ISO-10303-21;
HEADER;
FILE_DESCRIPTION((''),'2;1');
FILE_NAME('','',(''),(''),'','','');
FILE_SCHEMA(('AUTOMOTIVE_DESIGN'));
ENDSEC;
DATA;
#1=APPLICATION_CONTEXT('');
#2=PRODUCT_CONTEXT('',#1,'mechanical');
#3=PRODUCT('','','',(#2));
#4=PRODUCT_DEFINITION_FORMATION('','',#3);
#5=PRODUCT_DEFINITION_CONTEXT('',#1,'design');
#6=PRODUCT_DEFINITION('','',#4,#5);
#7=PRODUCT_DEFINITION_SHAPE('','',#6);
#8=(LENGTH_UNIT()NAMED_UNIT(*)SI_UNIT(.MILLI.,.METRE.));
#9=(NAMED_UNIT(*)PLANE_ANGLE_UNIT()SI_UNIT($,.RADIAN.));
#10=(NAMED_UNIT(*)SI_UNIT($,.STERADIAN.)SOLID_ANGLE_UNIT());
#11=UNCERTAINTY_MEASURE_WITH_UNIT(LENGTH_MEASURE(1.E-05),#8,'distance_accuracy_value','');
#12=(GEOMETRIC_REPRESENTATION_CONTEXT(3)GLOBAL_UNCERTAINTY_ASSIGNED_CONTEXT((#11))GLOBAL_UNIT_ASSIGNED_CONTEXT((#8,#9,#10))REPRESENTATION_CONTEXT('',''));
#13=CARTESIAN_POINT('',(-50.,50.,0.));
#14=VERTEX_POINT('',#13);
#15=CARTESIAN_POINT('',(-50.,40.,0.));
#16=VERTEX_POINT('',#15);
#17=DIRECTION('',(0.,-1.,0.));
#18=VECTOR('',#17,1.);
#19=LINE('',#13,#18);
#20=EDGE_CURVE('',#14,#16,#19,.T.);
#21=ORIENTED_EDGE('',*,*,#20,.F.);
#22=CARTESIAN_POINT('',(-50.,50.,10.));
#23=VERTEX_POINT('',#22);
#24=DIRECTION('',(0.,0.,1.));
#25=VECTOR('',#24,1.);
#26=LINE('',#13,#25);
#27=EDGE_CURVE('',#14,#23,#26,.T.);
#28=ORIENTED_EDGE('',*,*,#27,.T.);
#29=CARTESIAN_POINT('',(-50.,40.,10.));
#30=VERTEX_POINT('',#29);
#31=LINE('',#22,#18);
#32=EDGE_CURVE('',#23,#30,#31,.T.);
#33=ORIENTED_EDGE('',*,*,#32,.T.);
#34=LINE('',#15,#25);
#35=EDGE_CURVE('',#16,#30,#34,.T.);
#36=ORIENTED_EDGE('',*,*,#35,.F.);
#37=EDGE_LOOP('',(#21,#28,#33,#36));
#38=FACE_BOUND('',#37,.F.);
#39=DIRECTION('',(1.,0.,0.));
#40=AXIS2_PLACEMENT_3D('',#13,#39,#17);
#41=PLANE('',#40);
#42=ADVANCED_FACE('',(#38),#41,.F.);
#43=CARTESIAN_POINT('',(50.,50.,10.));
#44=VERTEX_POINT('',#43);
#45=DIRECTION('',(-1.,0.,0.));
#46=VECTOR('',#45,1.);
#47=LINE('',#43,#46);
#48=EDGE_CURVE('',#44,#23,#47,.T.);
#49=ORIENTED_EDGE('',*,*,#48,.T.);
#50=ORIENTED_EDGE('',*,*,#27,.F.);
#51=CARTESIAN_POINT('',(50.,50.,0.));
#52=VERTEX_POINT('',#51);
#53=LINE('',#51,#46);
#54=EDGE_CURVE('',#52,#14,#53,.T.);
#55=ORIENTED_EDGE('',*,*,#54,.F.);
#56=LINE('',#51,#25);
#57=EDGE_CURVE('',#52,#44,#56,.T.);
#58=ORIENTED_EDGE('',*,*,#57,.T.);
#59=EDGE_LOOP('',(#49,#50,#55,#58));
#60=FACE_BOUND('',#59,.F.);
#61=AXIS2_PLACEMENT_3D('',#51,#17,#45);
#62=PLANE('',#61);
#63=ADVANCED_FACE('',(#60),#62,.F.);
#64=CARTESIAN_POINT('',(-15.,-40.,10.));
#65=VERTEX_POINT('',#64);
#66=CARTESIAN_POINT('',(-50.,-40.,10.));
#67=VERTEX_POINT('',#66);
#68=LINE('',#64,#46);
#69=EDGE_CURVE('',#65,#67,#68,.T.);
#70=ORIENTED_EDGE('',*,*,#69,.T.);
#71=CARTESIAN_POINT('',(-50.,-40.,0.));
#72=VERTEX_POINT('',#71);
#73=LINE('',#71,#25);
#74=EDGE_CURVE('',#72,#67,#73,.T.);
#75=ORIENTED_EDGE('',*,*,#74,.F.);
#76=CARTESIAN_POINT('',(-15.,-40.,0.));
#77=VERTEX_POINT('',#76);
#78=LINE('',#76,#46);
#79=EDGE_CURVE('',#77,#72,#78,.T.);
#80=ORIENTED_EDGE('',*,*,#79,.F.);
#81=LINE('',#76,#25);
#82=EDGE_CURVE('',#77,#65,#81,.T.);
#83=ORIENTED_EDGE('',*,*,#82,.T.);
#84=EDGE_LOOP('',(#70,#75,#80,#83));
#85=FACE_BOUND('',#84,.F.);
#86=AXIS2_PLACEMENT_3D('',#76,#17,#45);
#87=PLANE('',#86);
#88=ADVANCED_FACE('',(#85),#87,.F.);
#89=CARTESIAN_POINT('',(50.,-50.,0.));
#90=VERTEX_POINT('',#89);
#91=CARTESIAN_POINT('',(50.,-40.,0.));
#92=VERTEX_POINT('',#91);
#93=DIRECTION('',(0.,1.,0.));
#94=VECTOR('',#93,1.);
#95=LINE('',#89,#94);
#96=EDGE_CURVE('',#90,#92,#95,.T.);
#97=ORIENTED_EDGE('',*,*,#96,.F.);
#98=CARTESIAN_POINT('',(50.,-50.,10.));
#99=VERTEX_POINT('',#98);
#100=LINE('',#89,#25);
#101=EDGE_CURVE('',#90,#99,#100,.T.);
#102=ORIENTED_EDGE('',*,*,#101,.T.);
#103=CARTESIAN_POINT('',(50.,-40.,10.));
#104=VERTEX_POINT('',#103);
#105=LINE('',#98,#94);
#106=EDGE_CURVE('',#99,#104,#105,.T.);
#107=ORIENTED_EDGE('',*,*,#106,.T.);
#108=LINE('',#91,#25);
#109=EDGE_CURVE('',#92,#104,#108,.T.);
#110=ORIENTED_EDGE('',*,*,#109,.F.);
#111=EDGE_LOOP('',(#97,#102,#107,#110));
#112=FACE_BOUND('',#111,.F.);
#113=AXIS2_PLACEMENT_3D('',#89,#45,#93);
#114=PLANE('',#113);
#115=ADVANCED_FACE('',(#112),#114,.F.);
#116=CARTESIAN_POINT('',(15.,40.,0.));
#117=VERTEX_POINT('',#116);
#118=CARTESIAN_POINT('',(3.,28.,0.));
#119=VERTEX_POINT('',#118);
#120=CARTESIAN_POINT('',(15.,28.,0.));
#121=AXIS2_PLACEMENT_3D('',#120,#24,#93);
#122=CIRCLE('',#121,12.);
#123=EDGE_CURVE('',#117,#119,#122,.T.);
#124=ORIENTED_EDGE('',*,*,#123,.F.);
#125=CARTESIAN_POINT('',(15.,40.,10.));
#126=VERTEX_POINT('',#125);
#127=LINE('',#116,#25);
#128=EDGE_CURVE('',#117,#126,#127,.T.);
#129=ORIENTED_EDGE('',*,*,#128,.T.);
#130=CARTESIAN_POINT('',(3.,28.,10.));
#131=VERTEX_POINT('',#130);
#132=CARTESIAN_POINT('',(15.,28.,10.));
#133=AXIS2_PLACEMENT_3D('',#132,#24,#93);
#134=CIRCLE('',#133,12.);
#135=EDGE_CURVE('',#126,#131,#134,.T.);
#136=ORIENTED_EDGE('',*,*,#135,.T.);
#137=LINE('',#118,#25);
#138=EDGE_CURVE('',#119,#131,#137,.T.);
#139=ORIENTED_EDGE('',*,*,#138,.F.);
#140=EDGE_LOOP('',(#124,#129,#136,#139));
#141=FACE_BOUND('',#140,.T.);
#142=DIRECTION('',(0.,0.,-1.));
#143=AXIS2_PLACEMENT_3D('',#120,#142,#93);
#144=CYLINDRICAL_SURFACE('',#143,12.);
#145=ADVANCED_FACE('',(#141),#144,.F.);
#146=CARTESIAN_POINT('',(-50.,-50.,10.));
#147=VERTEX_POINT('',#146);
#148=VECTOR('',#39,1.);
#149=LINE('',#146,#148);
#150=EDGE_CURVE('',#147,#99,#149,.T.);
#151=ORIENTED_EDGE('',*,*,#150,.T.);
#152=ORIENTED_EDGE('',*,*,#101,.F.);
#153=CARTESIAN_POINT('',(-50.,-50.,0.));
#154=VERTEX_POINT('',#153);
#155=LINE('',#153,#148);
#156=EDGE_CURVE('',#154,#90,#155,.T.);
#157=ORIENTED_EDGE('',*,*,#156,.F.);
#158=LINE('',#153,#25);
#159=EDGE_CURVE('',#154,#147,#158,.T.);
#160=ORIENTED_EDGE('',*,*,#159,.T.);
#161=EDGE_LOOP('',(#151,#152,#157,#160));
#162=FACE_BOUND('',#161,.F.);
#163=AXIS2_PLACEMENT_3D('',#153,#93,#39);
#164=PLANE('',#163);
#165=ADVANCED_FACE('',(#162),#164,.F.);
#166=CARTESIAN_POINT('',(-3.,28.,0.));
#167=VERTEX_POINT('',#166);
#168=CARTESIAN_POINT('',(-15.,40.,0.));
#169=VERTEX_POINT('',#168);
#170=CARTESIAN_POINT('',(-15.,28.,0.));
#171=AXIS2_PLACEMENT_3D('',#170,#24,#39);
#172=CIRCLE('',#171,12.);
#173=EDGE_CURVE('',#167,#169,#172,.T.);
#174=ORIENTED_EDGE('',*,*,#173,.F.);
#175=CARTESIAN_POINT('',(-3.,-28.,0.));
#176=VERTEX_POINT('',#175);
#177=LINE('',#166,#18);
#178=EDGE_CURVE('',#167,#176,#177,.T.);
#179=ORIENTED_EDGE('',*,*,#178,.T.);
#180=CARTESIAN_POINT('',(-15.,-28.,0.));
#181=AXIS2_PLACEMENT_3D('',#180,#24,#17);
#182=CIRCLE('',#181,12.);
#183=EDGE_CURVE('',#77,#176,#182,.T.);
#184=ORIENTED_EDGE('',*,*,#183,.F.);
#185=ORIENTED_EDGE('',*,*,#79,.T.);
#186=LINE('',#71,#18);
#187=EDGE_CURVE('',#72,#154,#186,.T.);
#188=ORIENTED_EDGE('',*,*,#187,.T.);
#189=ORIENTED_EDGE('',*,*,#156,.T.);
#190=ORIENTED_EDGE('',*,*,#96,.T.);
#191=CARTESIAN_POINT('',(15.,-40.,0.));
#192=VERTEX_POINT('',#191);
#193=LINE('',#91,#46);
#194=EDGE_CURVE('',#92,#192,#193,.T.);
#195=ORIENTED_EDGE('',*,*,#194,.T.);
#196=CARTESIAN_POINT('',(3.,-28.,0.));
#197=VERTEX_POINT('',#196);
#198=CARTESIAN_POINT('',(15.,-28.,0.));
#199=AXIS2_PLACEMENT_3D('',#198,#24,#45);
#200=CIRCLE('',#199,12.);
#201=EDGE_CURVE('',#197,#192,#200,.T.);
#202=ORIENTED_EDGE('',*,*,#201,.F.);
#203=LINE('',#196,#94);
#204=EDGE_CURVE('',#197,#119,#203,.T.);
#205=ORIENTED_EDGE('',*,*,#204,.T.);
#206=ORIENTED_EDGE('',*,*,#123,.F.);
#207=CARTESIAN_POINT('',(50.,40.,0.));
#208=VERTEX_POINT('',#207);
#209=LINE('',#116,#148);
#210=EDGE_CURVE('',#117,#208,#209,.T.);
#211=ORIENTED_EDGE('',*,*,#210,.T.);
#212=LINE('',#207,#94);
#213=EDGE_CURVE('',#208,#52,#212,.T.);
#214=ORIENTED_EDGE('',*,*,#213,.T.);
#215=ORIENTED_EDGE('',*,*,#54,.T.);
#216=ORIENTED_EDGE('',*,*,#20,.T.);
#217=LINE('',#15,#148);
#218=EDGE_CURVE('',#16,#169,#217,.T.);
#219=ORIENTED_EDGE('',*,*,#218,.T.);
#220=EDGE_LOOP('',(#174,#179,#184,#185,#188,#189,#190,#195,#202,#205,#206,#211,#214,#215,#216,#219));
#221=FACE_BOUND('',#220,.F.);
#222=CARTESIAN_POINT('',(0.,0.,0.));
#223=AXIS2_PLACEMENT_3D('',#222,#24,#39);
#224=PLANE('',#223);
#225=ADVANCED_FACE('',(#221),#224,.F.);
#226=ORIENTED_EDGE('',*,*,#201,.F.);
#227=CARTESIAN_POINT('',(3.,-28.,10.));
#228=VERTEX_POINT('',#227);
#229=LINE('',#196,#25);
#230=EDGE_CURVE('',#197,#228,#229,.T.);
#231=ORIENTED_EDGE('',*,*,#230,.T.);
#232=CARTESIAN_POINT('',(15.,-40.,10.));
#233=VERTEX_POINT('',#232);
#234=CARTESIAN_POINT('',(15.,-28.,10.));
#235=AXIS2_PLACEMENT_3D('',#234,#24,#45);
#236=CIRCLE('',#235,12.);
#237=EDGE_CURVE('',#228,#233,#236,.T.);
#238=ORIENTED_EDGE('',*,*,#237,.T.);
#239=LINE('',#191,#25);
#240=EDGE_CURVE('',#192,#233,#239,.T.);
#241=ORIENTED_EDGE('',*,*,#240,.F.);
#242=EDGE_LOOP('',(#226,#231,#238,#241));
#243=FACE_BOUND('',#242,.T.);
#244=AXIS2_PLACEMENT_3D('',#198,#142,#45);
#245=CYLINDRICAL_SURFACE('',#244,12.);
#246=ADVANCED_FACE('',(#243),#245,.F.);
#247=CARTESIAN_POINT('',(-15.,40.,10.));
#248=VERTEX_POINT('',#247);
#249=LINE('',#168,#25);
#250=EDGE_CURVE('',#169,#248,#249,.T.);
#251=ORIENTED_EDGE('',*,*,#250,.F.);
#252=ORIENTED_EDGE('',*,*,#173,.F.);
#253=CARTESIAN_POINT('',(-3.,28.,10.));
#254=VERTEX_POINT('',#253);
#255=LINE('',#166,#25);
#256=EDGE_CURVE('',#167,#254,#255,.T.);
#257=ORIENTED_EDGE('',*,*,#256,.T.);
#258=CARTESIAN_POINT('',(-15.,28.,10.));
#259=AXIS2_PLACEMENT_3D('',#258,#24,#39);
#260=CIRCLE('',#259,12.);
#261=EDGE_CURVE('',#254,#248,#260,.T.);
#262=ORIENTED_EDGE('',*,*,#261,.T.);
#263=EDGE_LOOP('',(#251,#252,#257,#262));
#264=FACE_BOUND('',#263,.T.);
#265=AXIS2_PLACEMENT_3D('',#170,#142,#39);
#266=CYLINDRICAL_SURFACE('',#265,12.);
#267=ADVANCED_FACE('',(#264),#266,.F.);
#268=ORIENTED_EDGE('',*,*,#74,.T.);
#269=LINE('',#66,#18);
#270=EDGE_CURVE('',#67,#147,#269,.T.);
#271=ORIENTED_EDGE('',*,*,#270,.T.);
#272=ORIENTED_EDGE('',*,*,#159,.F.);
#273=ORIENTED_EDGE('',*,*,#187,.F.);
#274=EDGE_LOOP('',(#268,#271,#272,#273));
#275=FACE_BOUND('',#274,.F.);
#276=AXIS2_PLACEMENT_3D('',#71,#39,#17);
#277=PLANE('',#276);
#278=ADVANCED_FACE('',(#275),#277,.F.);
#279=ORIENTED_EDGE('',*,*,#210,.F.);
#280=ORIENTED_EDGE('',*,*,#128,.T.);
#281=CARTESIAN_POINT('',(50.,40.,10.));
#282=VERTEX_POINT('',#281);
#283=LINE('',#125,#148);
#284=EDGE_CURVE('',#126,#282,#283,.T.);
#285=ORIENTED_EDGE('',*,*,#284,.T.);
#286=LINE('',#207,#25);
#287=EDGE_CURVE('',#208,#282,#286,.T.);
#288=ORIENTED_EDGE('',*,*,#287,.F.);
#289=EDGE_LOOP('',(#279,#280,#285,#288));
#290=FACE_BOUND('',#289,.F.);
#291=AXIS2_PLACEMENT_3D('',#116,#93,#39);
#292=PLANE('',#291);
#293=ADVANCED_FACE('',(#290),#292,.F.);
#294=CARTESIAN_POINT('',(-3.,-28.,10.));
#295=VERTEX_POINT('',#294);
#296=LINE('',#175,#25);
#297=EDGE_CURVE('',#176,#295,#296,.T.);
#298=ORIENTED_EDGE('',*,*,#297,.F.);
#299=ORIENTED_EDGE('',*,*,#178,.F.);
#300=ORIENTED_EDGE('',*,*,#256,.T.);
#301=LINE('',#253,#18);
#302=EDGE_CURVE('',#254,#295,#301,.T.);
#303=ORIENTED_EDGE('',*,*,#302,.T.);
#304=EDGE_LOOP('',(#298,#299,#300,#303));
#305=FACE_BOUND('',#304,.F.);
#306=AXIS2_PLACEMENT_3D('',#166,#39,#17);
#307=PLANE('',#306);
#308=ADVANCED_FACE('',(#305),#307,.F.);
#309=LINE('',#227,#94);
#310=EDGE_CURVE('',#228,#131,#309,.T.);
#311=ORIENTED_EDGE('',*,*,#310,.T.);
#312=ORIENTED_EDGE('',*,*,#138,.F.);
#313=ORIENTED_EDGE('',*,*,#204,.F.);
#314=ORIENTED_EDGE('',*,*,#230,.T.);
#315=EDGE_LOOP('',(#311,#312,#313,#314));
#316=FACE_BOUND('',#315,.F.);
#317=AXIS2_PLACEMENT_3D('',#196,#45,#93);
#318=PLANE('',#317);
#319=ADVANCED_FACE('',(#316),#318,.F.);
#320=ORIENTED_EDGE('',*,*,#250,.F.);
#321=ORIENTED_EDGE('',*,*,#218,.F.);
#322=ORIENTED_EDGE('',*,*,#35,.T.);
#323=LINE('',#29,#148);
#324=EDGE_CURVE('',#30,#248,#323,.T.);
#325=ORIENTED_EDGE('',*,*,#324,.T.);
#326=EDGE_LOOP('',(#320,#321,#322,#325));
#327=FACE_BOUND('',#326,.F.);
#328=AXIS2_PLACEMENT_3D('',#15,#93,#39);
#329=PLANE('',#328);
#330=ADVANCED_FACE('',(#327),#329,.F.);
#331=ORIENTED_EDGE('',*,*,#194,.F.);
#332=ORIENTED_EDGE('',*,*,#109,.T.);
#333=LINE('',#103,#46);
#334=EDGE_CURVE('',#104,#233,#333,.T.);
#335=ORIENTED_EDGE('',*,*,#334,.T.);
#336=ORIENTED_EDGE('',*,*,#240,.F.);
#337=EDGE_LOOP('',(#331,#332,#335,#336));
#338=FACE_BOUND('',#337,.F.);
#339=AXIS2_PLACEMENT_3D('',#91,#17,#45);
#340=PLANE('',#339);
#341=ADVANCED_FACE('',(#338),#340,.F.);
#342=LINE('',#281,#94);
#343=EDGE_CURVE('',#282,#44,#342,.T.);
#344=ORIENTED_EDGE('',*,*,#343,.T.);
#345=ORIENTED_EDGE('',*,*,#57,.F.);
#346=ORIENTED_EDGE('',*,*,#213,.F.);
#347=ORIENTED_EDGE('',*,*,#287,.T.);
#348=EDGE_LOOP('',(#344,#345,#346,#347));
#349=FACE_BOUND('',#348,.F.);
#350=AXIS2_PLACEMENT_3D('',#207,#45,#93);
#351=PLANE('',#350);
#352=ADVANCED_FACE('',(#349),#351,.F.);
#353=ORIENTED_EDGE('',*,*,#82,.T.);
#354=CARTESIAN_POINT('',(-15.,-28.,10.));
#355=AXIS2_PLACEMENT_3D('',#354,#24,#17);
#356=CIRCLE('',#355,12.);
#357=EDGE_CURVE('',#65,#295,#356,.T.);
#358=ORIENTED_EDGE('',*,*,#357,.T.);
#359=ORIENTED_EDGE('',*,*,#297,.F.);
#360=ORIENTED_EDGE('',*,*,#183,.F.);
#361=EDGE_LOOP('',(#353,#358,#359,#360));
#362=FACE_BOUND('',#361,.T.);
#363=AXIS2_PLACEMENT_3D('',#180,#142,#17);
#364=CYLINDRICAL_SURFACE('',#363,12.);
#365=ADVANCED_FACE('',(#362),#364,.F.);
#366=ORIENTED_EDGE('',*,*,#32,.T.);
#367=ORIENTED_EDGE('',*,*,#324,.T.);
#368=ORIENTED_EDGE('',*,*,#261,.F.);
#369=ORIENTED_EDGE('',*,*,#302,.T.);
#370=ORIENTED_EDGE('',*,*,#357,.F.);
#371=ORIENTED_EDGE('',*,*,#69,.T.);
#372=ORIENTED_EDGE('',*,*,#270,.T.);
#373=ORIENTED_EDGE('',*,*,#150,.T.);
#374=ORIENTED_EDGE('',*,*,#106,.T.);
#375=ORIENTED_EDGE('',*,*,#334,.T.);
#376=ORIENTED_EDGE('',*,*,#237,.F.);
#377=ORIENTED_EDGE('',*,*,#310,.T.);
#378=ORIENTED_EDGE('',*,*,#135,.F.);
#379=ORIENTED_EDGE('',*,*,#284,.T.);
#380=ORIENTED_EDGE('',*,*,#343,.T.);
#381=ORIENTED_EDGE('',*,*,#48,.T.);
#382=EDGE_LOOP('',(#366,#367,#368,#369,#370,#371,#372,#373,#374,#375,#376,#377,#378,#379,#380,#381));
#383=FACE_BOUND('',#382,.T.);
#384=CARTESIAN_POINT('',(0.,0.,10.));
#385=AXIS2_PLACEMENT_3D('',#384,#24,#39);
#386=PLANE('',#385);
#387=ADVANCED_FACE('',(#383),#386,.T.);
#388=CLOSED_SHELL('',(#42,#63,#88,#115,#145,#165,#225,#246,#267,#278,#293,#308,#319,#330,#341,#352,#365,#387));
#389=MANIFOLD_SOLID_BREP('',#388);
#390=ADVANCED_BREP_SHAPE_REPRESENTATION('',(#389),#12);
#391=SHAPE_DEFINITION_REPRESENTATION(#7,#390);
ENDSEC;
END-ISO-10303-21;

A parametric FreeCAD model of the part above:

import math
import FreeCAD as App
import Part
import Sketcher
from FreeCAD import Vector

doc = App.newDocument("Part")
body = doc.addObject("PartDesign::Body", "Body")

# Sketch on XY plane
sketch1 = body.newObject("Sketcher::SketchObject", "Sketch")
sketch1.AttachmentSupport = (doc.getObject("XY_Plane"), [""])
sketch1.MapMode = "FlatFace"
sketch1.addGeometry([
    Part.LineSegment(Vector(-50, 50, 0), Vector(-50, 40, 0)),  # 0
    Part.LineSegment(Vector(-50, 40, 0), Vector(-15, 40, 0)),  # 1
    Part.ArcOfCircle(Part.Circle(Vector(-15, 28, 0), Vector(0, 0, 1), 12), math.radians(0), math.radians(90)),  # 2
    Part.LineSegment(Vector(-3, 28, 0), Vector(-3, -28, 0)),  # 3
    Part.ArcOfCircle(Part.Circle(Vector(-15, -28, 0), Vector(0, 0, 1), 12), math.radians(-90), math.radians(0)),  # 4
    Part.LineSegment(Vector(-15, -40, 0), Vector(-50, -40, 0)),  # 5
    Part.LineSegment(Vector(-50, -40, 0), Vector(-50, -50, 0)),  # 6
    Part.LineSegment(Vector(-50, -50, 0), Vector(50, -50, 0)),  # 7
    Part.LineSegment(Vector(50, -50, 0), Vector(50, -40, 0)),  # 8
    Part.LineSegment(Vector(50, -40, 0), Vector(15, -40, 0)),  # 9
    Part.ArcOfCircle(Part.Circle(Vector(15, -28, 0), Vector(0, 0, 1), 12), math.radians(180), math.radians(270)),  # 10
    Part.LineSegment(Vector(3, -28, 0), Vector(3, 28, 0)),  # 11
    Part.ArcOfCircle(Part.Circle(Vector(15, 28, 0), Vector(0, 0, 1), 12), math.radians(90), math.radians(180)),  # 12
    Part.LineSegment(Vector(15, 40, 0), Vector(50, 40, 0)),  # 13
    Part.LineSegment(Vector(50, 40, 0), Vector(50, 50, 0)),  # 14
    Part.LineSegment(Vector(50, 50, 0), Vector(-50, 50, 0)),  # 15
], False)
sketch1.addConstraint([
    Sketcher.Constraint("Coincident", 0, 2, 1, 1),
    Sketcher.Constraint("Tangent", 1, 2, 2, 2),
    Sketcher.Constraint("Tangent", 2, 1, 3, 1),
    Sketcher.Constraint("Tangent", 3, 2, 4, 2),
    Sketcher.Constraint("Tangent", 4, 1, 5, 1),
    Sketcher.Constraint("Coincident", 5, 2, 6, 1),
    Sketcher.Constraint("Coincident", 6, 2, 7, 1),
    Sketcher.Constraint("Coincident", 7, 2, 8, 1),
    Sketcher.Constraint("Coincident", 8, 2, 9, 1),
    Sketcher.Constraint("Tangent", 9, 2, 10, 2),
    Sketcher.Constraint("Tangent", 10, 1, 11, 1),
    Sketcher.Constraint("Tangent", 11, 2, 12, 2),
    Sketcher.Constraint("Tangent", 12, 1, 13, 1),
    Sketcher.Constraint("Coincident", 13, 2, 14, 1),
    Sketcher.Constraint("Coincident", 14, 2, 15, 1),
    Sketcher.Constraint("Coincident", 15, 2, 0, 1),
    Sketcher.Constraint("Vertical", 0),
    Sketcher.Constraint("Horizontal", 1),
    Sketcher.Constraint("Vertical", 3),
    Sketcher.Constraint("Horizontal", 5),
    Sketcher.Constraint("Vertical", 6),
    Sketcher.Constraint("Horizontal", 7),
    Sketcher.Constraint("Vertical", 8),
    Sketcher.Constraint("Horizontal", 9),
    Sketcher.Constraint("Vertical", 11),
    Sketcher.Constraint("Horizontal", 13),
    Sketcher.Constraint("Vertical", 14),
    Sketcher.Constraint("Horizontal", 15),
    Sketcher.Constraint("Equal", 2, 4),
    Sketcher.Constraint("Equal", 4, 10),
    Sketcher.Constraint("Equal", 10, 12),
    Sketcher.Constraint("Symmetric", 2, 3, 10, 3, -1, 1),
    Sketcher.Constraint("Symmetric", 5, 2, 13, 2, -1, 1),
    Sketcher.Constraint("Symmetric", 7, 2, 15, 2, -1, 1),
    Sketcher.Constraint("Symmetric", 5, 2, 8, 2, -2),
    Sketcher.Constraint("Radius", 2, 12.0),
    Sketcher.Constraint("DistanceX", 7, 1, 7, 2, 100.0),
    Sketcher.Constraint("DistanceY", 0, 2, 0, 1, 10.0),
    Sketcher.Constraint("DistanceX", 3, 2, 10, 1, 6.0),
    Sketcher.Constraint("DistanceY", 3, 2, 3, 1, 56.0),
])
pad1 = body.newObject("PartDesign::Pad", "Pad")
pad1.Profile = sketch1
pad1.Length = 10

doc.recompute()
